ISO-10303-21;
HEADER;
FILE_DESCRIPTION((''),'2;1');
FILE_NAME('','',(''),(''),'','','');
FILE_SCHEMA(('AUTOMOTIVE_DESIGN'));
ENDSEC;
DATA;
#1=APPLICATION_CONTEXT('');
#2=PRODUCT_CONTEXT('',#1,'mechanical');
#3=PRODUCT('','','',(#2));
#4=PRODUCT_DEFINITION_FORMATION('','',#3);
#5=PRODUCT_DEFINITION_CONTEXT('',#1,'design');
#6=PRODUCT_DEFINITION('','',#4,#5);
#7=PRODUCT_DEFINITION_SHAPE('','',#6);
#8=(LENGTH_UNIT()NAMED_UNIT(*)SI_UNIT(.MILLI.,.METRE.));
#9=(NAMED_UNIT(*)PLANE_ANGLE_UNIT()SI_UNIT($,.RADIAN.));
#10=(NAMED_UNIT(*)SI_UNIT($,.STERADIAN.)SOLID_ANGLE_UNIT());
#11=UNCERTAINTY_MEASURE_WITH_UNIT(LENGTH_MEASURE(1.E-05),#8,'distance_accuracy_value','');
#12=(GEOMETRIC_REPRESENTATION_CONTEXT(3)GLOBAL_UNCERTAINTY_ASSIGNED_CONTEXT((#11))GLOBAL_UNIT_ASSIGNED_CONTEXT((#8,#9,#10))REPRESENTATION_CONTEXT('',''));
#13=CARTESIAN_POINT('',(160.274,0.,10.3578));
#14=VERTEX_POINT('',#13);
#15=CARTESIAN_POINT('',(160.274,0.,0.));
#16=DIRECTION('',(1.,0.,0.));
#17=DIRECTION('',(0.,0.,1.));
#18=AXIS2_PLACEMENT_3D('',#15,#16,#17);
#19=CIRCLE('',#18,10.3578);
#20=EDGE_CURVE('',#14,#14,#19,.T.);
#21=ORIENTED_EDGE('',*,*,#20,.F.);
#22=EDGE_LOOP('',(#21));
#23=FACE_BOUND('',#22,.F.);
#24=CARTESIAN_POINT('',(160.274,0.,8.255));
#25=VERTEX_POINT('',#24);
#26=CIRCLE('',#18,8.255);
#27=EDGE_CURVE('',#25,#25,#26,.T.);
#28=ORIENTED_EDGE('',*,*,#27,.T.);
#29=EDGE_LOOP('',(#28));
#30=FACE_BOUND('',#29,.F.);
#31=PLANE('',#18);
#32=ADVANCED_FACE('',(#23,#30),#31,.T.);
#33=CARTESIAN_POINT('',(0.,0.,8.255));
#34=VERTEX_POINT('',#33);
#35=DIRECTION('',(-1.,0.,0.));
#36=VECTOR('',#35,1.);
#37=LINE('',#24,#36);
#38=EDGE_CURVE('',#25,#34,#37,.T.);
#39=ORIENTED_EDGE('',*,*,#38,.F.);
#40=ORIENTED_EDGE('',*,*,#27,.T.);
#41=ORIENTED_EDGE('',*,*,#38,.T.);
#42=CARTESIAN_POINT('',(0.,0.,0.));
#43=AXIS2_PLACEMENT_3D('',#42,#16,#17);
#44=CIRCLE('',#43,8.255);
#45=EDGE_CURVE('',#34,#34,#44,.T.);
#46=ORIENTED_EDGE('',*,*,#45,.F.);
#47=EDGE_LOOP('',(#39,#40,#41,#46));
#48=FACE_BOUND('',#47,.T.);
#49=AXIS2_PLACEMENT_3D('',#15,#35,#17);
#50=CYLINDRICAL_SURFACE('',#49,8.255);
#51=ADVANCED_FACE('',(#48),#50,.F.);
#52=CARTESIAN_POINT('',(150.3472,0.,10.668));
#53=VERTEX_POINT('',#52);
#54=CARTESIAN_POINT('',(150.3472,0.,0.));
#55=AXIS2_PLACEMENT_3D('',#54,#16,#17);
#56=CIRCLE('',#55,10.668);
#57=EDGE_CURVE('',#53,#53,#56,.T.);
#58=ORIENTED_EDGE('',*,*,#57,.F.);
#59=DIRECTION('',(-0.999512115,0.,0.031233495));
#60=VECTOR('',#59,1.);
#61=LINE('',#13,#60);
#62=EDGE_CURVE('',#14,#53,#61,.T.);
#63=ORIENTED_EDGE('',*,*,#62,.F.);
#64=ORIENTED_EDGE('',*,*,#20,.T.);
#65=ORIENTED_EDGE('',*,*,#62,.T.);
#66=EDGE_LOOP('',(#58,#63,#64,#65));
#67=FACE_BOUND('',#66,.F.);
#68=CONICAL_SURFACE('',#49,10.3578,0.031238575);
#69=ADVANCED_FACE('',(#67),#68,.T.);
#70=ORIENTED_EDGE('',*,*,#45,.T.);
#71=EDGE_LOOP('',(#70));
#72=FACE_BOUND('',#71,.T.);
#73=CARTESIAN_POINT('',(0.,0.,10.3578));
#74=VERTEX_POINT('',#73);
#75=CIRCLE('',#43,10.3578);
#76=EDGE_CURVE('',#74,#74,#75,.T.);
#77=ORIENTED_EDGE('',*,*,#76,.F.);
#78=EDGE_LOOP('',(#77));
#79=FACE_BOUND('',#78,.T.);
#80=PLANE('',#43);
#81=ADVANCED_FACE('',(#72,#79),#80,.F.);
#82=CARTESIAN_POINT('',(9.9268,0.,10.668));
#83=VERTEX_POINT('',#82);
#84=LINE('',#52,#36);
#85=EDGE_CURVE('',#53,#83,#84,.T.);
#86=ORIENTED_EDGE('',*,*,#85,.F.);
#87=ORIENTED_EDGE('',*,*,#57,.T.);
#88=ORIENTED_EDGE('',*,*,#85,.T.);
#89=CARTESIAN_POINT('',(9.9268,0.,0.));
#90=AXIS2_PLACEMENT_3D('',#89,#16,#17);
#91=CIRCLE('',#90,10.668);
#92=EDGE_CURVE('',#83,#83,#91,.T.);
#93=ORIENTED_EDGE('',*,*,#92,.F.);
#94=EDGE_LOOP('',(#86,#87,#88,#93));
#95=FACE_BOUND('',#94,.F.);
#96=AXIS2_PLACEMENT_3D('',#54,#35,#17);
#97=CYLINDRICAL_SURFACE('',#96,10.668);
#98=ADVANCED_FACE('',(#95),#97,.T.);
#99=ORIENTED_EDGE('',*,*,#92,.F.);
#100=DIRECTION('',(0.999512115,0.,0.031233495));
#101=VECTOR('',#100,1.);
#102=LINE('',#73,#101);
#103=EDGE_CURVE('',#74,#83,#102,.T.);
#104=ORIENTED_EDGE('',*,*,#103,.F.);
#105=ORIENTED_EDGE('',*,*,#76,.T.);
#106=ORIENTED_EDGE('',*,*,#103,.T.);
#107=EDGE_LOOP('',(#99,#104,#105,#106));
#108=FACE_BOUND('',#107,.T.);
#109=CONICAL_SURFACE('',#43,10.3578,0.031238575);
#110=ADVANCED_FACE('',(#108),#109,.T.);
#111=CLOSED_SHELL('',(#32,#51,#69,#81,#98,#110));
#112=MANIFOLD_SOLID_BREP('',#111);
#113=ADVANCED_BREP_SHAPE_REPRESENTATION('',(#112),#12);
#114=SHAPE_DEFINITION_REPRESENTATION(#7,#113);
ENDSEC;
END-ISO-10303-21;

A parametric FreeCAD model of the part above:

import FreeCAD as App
import Part
import Sketcher
from FreeCAD import Vector
Q = App.Units.Quantity


def add_polygon(sketch, points):
    """Adds a closed chain of lines whose ends are joined by coincident constraints."""
    first, n = sketch.GeometryCount, len(points)
    for a, b in zip(points, points[1:] + points[:1]):
        sketch.addGeometry(Part.LineSegment(App.Vector(*a, 0), App.Vector(*b, 0)), False)
    for i in range(n):
        sketch.addConstraint(Sketcher.Constraint("Coincident", first + i, 2, first + (i + 1) % n, 1))

doc = App.newDocument("Part")
body = doc.addObject("PartDesign::Body", "Body")

# Sketch on XZ plane
sketch1 = body.newObject("Sketcher::SketchObject", "Sketch")
sketch1.AttachmentSupport = (doc.getObject("XZ_Plane"), [""])
sketch1.MapMode = "FlatFace"
add_polygon(sketch1, [(160.3, 10.4), (160.3, 8.3), (0, 8.3), (0, 10.4), (9.9, 10.7), (150.3, 10.7)])  # lines 0-5
sketch1.addConstraint([
    Sketcher.Constraint("Vertical", 0),
    Sketcher.Constraint("Horizontal", 1),
    Sketcher.Constraint("Vertical", 2),
    Sketcher.Constraint("Horizontal", 4),
    Sketcher.Constraint("PointOnObject", 1, 2, -2),
    Sketcher.Constraint("Horizontal", 2, 2, 5, 2),
    Sketcher.Constraint("Equal", 3, 5),
    Sketcher.Constraint("DistanceX", 1, 2, 1, 1, Q("6.31 in")),
    Sketcher.Constraint("Angle", 3, Q("1.7898 deg")),
    Sketcher.Constraint("DistanceY", -1, 1, 3, 2, Q("0.42 in")),
    Sketcher.Constraint("Distance", 3, Q("0.391 in")),
    Sketcher.Constraint("DistanceY", -1, 1, 0, 2, Q("0.325 in")),
])
revolution = body.newObject("PartDesign::Revolution", "Revolution")
revolution.Profile = sketch1
revolution.ReferenceAxis = (sketch1, ["H_Axis"])
revolution.Angle = 360

doc.recompute()
